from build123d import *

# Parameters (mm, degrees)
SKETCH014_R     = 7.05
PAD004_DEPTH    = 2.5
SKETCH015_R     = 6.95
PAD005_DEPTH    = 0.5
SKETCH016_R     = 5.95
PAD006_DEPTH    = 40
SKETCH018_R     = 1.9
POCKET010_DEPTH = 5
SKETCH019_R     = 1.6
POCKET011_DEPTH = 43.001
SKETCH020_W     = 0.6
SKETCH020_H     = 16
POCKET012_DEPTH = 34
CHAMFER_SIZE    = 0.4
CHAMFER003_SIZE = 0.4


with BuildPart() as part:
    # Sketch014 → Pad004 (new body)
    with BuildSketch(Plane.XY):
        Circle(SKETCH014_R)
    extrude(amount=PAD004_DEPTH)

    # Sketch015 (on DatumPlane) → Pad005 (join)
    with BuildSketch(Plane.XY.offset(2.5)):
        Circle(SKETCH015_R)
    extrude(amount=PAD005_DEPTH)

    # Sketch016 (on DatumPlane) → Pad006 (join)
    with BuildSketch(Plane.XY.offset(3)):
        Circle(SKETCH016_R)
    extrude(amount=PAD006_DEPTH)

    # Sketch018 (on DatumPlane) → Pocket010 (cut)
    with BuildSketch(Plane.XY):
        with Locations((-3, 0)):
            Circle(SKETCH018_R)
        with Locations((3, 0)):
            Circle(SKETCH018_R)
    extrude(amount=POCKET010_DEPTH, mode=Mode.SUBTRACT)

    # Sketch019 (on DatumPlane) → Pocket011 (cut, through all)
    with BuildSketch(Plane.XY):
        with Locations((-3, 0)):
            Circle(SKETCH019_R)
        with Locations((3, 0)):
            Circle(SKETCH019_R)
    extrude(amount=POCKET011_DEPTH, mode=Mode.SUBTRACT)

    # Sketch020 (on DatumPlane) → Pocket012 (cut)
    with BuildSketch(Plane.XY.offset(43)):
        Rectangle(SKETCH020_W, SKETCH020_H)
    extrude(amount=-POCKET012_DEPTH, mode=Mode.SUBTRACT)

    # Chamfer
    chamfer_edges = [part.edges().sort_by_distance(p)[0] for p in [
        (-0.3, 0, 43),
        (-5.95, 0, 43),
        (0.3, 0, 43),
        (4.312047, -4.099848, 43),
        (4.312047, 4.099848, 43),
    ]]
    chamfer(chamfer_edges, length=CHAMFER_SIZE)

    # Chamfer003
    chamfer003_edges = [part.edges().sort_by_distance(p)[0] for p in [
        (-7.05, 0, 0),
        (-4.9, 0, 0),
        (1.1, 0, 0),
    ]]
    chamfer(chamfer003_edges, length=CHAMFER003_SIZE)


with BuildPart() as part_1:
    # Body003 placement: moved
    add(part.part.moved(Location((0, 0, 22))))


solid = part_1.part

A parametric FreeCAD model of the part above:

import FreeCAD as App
import Part
import Sketcher
Q = App.Units.Quantity


def edges_at(feature, points):
    """Names of the edges that pass closest to the given points."""
    edges = feature.Shape.Edges
    near = lambda p: min(range(len(edges)), key=lambda i: edges[i].distToShape(Part.Vertex(*p))[0])
    return sorted({f"Edge{near(p) + 1}" for p in points})

doc = App.newDocument("Part")
params = doc.addObject("Spreadsheet::Sheet", "Params")
for row, (alias, value) in enumerate([
    ("sketch1_diameter", "14.1 mm"),
    ("pad1_length", "2.5 mm"),
    ("sketch2_diameter", "13.9 mm"),
    ("pad2_length", "0.5 mm"),
    ("sketch3_diameter", "11.9 mm"),
    ("pad3_length", "40 mm"),
    ("sketch4_diameter", "3.8 mm"),
    ("pocket1_length", "5 mm"),
    ("sketch5_diameter", "3.2 mm"),
    ("sketch6_height", "16 mm"),
    ("sketch6_width", "0.6 mm"),
    ("pocket3_length", "34 mm"),
    ("chamfer_size", "0.4 mm"),
    ("chamfer2_size", "0.4 mm"),
], start=1):
    params.set(f"A{row}", alias)
    params.set(f"B{row}", "=" + value)
    params.setAlias(f"B{row}", alias)

body = doc.addObject("PartDesign::Body", "Body")

# Sketch on XY plane
sketch1 = body.newObject("Sketcher::SketchObject", "Sketch")
sketch1.AttachmentSupport = (doc.getObject("XY_Plane"), [""])
sketch1.MapMode = "FlatFace"
sketch1.addGeometry(Part.Circle(App.Vector(0, 0, 0), App.Vector(0, 0, 1), 7), False)
sketch1.addConstraint([
    Sketcher.Constraint("Coincident", 0, 3, -1, 1),
    Sketcher.Constraint("Diameter", 0, Q("14.1 mm")),
])
sketch1.setExpression("Constraints[1]", "Params.sketch1_diameter")
pad1 = body.newObject("PartDesign::Pad", "Pad")
pad1.Profile = sketch1
pad1.setExpression("Length", "Params.pad1_length")

# Sketch on XY plane
sketch2 = body.newObject("Sketcher::SketchObject", "Sketch001")
sketch2.AttachmentSupport = (doc.getObject("XY_Plane"), [""])
sketch2.MapMode = "FlatFace"
sketch2.AttachmentOffset = App.Placement(App.Vector(0, 0, 2.5), App.Rotation())
sketch2.addGeometry(Part.Circle(App.Vector(0, 0, 0), App.Vector(0, 0, 1), 7), False)
sketch2.addConstraint([
    Sketcher.Constraint("Coincident", 0, 3, -1, 1),
    Sketcher.Constraint("Diameter", 0, Q("13.9 mm")),
])
sketch2.setExpression("Constraints[1]", "Params.sketch2_diameter")
pad2 = body.newObject("PartDesign::Pad", "Pad001")
pad2.Profile = sketch2
pad2.setExpression("Length", "Params.pad2_length")

# Sketch on XY plane
sketch3 = body.newObject("Sketcher::SketchObject", "Sketch002")
sketch3.AttachmentSupport = (doc.getObject("XY_Plane"), [""])
sketch3.MapMode = "FlatFace"
sketch3.AttachmentOffset = App.Placement(App.Vector(0, 0, 3), App.Rotation())
sketch3.addGeometry(Part.Circle(App.Vector(0, 0, 0), App.Vector(0, 0, 1), 6), False)
sketch3.addConstraint([
    Sketcher.Constraint("Coincident", 0, 3, -1, 1),
    Sketcher.Constraint("Diameter", 0, Q("11.9 mm")),
])
sketch3.setExpression("Constraints[1]", "Params.sketch3_diameter")
pad3 = body.newObject("PartDesign::Pad", "Pad002")
pad3.Profile = sketch3
pad3.setExpression("Length", "Params.pad3_length")

# Sketch on XY plane
sketch4 = body.newObject("Sketcher::SketchObject", "Sketch003")
sketch4.AttachmentSupport = (doc.getObject("XY_Plane"), [""])
sketch4.MapMode = "FlatFace"
sketch4.addGeometry([
    Part.Circle(App.Vector(-3, 0, 0), App.Vector(0, 0, 1), 1.9),
    Part.Circle(App.Vector(3, 0, 0), App.Vector(0, 0, 1), 1.9),
], False)
sketch4.addConstraint([
    Sketcher.Constraint("Equal", 0, 1),
    Sketcher.Constraint("Symmetric", 0, 3, 1, 3, -1, 1),
    Sketcher.Constraint("PointOnObject", 0, 3, -1),
    Sketcher.Constraint("Diameter", 0, Q("3.8 mm")),
    Sketcher.Constraint("DistanceX", 0, 3, -1, 1, Q("3 mm")),
])
sketch4.setExpression("Constraints[3]", "Params.sketch4_diameter")
pocket1 = body.newObject("PartDesign::Pocket", "Pocket")
pocket1.Profile = sketch4
pocket1.setExpression("Length", "Params.pocket1_length")
pocket1.Reversed = True

# Sketch on XY plane
sketch5 = body.newObject("Sketcher::SketchObject", "Sketch004")
sketch5.AttachmentSupport = (doc.getObject("XY_Plane"), [""])
sketch5.MapMode = "FlatFace"
sketch5.addGeometry([
    Part.Circle(App.Vector(-3, 0, 0), App.Vector(0, 0, 1), 1.6),
    Part.Circle(App.Vector(3, 0, 0), App.Vector(0, 0, 1), 1.6),
], False)
sketch5.addConstraint([
    Sketcher.Constraint("Equal", 0, 1),
    Sketcher.Constraint("Symmetric", 0, 3, 1, 3, -1, 1),
    Sketcher.Constraint("PointOnObject", 0, 3, -1),
    Sketcher.Constraint("Diameter", 0, Q("3.2 mm")),
    Sketcher.Constraint("DistanceX", 0, 3, -1, 1, Q("3 mm")),
])
sketch5.setExpression("Constraints[3]", "Params.sketch5_diameter")
pocket2 = body.newObject("PartDesign::Pocket", "Pocket001")
pocket2.Profile = sketch5
pocket2.Type = "ThroughAll"
pocket2.Reversed = True

# Sketch on XY plane
sketch6 = body.newObject("Sketcher::SketchObject", "Sketch005")
sketch6.AttachmentSupport = (doc.getObject("XY_Plane"), [""])
sketch6.MapMode = "FlatFace"
sketch6.AttachmentOffset = App.Placement(App.Vector(0, 0, 43), App.Rotation())
sketch6.addGeometry([
    Part.LineSegment(App.Vector(-0.3, 8, 0), App.Vector(-0.3, -8, 0)),
    Part.LineSegment(App.Vector(-0.3, -8, 0), App.Vector(0.3, -8, 0)),
    Part.LineSegment(App.Vector(0.3, -8, 0), App.Vector(0.3, 8, 0)),
    Part.LineSegment(App.Vector(0.3, 8, 0), App.Vector(-0.3, 8, 0)),
], False)
sketch6.addConstraint([
    Sketcher.Constraint("Coincident", 0, 2, 1, 1),
    Sketcher.Constraint("Coincident", 1, 2, 2, 1),
    Sketcher.Constraint("Coincident", 2, 2, 3, 1),
    Sketcher.Constraint("Coincident", 3, 2, 0, 1),
    Sketcher.Constraint("Vertical", 0),
    Sketcher.Constraint("Horizontal", 1),
    Sketcher.Constraint("Vertical", 2),
    Sketcher.Constraint("Horizontal", 3),
    Sketcher.Constraint("Symmetric", 0, 2, 2, 2, -1, 1),
    Sketcher.Constraint("DistanceY", 0, 2, 0, 1, Q("16 mm")),
    Sketcher.Constraint("DistanceX", 1, 1, 1, 2, Q("0.6 mm")),
])
sketch6.setExpression("Constraints[9]", "Params.sketch6_height")
sketch6.setExpression("Constraints[10]", "Params.sketch6_width")
pocket3 = body.newObject("PartDesign::Pocket", "Pocket002")
pocket3.Profile = sketch6
pocket3.setExpression("Length", "Params.pocket3_length")
doc.recompute()

chamfer = body.newObject("PartDesign::Chamfer", "Chamfer")
chamfer.Base = (pocket3, edges_at(pocket3, [
    (-0.3, 0, 43),
    (-5.95, 0, 43),
    (0.3, 0, 43),
    (4.312, -4.1, 43),
    (4.312, 4.1, 43),
]))
chamfer.setExpression("Size", "Params.chamfer_size")
doc.recompute()

chamfer2 = body.newObject("PartDesign::Chamfer", "Chamfer001")
chamfer2.Base = (chamfer, edges_at(chamfer, [(-7.05, 0, 0), (-4.9, 0, 0), (1.1, 0, 0)]))
chamfer2.setExpression("Size", "Params.chamfer2_size")
body2 = doc.addObject("PartDesign::Body", "Body001")
doc.recompute()

body.Placement = App.Placement(App.Vector(0, 0, 22), App.Rotation(App.Vector(0, 0, 1), 0))
boolean = body2.newObject("PartDesign::Boolean", "Boolean")
boolean.Type = "Fuse"
boolean.addObjects([body])

doc.recompute()
